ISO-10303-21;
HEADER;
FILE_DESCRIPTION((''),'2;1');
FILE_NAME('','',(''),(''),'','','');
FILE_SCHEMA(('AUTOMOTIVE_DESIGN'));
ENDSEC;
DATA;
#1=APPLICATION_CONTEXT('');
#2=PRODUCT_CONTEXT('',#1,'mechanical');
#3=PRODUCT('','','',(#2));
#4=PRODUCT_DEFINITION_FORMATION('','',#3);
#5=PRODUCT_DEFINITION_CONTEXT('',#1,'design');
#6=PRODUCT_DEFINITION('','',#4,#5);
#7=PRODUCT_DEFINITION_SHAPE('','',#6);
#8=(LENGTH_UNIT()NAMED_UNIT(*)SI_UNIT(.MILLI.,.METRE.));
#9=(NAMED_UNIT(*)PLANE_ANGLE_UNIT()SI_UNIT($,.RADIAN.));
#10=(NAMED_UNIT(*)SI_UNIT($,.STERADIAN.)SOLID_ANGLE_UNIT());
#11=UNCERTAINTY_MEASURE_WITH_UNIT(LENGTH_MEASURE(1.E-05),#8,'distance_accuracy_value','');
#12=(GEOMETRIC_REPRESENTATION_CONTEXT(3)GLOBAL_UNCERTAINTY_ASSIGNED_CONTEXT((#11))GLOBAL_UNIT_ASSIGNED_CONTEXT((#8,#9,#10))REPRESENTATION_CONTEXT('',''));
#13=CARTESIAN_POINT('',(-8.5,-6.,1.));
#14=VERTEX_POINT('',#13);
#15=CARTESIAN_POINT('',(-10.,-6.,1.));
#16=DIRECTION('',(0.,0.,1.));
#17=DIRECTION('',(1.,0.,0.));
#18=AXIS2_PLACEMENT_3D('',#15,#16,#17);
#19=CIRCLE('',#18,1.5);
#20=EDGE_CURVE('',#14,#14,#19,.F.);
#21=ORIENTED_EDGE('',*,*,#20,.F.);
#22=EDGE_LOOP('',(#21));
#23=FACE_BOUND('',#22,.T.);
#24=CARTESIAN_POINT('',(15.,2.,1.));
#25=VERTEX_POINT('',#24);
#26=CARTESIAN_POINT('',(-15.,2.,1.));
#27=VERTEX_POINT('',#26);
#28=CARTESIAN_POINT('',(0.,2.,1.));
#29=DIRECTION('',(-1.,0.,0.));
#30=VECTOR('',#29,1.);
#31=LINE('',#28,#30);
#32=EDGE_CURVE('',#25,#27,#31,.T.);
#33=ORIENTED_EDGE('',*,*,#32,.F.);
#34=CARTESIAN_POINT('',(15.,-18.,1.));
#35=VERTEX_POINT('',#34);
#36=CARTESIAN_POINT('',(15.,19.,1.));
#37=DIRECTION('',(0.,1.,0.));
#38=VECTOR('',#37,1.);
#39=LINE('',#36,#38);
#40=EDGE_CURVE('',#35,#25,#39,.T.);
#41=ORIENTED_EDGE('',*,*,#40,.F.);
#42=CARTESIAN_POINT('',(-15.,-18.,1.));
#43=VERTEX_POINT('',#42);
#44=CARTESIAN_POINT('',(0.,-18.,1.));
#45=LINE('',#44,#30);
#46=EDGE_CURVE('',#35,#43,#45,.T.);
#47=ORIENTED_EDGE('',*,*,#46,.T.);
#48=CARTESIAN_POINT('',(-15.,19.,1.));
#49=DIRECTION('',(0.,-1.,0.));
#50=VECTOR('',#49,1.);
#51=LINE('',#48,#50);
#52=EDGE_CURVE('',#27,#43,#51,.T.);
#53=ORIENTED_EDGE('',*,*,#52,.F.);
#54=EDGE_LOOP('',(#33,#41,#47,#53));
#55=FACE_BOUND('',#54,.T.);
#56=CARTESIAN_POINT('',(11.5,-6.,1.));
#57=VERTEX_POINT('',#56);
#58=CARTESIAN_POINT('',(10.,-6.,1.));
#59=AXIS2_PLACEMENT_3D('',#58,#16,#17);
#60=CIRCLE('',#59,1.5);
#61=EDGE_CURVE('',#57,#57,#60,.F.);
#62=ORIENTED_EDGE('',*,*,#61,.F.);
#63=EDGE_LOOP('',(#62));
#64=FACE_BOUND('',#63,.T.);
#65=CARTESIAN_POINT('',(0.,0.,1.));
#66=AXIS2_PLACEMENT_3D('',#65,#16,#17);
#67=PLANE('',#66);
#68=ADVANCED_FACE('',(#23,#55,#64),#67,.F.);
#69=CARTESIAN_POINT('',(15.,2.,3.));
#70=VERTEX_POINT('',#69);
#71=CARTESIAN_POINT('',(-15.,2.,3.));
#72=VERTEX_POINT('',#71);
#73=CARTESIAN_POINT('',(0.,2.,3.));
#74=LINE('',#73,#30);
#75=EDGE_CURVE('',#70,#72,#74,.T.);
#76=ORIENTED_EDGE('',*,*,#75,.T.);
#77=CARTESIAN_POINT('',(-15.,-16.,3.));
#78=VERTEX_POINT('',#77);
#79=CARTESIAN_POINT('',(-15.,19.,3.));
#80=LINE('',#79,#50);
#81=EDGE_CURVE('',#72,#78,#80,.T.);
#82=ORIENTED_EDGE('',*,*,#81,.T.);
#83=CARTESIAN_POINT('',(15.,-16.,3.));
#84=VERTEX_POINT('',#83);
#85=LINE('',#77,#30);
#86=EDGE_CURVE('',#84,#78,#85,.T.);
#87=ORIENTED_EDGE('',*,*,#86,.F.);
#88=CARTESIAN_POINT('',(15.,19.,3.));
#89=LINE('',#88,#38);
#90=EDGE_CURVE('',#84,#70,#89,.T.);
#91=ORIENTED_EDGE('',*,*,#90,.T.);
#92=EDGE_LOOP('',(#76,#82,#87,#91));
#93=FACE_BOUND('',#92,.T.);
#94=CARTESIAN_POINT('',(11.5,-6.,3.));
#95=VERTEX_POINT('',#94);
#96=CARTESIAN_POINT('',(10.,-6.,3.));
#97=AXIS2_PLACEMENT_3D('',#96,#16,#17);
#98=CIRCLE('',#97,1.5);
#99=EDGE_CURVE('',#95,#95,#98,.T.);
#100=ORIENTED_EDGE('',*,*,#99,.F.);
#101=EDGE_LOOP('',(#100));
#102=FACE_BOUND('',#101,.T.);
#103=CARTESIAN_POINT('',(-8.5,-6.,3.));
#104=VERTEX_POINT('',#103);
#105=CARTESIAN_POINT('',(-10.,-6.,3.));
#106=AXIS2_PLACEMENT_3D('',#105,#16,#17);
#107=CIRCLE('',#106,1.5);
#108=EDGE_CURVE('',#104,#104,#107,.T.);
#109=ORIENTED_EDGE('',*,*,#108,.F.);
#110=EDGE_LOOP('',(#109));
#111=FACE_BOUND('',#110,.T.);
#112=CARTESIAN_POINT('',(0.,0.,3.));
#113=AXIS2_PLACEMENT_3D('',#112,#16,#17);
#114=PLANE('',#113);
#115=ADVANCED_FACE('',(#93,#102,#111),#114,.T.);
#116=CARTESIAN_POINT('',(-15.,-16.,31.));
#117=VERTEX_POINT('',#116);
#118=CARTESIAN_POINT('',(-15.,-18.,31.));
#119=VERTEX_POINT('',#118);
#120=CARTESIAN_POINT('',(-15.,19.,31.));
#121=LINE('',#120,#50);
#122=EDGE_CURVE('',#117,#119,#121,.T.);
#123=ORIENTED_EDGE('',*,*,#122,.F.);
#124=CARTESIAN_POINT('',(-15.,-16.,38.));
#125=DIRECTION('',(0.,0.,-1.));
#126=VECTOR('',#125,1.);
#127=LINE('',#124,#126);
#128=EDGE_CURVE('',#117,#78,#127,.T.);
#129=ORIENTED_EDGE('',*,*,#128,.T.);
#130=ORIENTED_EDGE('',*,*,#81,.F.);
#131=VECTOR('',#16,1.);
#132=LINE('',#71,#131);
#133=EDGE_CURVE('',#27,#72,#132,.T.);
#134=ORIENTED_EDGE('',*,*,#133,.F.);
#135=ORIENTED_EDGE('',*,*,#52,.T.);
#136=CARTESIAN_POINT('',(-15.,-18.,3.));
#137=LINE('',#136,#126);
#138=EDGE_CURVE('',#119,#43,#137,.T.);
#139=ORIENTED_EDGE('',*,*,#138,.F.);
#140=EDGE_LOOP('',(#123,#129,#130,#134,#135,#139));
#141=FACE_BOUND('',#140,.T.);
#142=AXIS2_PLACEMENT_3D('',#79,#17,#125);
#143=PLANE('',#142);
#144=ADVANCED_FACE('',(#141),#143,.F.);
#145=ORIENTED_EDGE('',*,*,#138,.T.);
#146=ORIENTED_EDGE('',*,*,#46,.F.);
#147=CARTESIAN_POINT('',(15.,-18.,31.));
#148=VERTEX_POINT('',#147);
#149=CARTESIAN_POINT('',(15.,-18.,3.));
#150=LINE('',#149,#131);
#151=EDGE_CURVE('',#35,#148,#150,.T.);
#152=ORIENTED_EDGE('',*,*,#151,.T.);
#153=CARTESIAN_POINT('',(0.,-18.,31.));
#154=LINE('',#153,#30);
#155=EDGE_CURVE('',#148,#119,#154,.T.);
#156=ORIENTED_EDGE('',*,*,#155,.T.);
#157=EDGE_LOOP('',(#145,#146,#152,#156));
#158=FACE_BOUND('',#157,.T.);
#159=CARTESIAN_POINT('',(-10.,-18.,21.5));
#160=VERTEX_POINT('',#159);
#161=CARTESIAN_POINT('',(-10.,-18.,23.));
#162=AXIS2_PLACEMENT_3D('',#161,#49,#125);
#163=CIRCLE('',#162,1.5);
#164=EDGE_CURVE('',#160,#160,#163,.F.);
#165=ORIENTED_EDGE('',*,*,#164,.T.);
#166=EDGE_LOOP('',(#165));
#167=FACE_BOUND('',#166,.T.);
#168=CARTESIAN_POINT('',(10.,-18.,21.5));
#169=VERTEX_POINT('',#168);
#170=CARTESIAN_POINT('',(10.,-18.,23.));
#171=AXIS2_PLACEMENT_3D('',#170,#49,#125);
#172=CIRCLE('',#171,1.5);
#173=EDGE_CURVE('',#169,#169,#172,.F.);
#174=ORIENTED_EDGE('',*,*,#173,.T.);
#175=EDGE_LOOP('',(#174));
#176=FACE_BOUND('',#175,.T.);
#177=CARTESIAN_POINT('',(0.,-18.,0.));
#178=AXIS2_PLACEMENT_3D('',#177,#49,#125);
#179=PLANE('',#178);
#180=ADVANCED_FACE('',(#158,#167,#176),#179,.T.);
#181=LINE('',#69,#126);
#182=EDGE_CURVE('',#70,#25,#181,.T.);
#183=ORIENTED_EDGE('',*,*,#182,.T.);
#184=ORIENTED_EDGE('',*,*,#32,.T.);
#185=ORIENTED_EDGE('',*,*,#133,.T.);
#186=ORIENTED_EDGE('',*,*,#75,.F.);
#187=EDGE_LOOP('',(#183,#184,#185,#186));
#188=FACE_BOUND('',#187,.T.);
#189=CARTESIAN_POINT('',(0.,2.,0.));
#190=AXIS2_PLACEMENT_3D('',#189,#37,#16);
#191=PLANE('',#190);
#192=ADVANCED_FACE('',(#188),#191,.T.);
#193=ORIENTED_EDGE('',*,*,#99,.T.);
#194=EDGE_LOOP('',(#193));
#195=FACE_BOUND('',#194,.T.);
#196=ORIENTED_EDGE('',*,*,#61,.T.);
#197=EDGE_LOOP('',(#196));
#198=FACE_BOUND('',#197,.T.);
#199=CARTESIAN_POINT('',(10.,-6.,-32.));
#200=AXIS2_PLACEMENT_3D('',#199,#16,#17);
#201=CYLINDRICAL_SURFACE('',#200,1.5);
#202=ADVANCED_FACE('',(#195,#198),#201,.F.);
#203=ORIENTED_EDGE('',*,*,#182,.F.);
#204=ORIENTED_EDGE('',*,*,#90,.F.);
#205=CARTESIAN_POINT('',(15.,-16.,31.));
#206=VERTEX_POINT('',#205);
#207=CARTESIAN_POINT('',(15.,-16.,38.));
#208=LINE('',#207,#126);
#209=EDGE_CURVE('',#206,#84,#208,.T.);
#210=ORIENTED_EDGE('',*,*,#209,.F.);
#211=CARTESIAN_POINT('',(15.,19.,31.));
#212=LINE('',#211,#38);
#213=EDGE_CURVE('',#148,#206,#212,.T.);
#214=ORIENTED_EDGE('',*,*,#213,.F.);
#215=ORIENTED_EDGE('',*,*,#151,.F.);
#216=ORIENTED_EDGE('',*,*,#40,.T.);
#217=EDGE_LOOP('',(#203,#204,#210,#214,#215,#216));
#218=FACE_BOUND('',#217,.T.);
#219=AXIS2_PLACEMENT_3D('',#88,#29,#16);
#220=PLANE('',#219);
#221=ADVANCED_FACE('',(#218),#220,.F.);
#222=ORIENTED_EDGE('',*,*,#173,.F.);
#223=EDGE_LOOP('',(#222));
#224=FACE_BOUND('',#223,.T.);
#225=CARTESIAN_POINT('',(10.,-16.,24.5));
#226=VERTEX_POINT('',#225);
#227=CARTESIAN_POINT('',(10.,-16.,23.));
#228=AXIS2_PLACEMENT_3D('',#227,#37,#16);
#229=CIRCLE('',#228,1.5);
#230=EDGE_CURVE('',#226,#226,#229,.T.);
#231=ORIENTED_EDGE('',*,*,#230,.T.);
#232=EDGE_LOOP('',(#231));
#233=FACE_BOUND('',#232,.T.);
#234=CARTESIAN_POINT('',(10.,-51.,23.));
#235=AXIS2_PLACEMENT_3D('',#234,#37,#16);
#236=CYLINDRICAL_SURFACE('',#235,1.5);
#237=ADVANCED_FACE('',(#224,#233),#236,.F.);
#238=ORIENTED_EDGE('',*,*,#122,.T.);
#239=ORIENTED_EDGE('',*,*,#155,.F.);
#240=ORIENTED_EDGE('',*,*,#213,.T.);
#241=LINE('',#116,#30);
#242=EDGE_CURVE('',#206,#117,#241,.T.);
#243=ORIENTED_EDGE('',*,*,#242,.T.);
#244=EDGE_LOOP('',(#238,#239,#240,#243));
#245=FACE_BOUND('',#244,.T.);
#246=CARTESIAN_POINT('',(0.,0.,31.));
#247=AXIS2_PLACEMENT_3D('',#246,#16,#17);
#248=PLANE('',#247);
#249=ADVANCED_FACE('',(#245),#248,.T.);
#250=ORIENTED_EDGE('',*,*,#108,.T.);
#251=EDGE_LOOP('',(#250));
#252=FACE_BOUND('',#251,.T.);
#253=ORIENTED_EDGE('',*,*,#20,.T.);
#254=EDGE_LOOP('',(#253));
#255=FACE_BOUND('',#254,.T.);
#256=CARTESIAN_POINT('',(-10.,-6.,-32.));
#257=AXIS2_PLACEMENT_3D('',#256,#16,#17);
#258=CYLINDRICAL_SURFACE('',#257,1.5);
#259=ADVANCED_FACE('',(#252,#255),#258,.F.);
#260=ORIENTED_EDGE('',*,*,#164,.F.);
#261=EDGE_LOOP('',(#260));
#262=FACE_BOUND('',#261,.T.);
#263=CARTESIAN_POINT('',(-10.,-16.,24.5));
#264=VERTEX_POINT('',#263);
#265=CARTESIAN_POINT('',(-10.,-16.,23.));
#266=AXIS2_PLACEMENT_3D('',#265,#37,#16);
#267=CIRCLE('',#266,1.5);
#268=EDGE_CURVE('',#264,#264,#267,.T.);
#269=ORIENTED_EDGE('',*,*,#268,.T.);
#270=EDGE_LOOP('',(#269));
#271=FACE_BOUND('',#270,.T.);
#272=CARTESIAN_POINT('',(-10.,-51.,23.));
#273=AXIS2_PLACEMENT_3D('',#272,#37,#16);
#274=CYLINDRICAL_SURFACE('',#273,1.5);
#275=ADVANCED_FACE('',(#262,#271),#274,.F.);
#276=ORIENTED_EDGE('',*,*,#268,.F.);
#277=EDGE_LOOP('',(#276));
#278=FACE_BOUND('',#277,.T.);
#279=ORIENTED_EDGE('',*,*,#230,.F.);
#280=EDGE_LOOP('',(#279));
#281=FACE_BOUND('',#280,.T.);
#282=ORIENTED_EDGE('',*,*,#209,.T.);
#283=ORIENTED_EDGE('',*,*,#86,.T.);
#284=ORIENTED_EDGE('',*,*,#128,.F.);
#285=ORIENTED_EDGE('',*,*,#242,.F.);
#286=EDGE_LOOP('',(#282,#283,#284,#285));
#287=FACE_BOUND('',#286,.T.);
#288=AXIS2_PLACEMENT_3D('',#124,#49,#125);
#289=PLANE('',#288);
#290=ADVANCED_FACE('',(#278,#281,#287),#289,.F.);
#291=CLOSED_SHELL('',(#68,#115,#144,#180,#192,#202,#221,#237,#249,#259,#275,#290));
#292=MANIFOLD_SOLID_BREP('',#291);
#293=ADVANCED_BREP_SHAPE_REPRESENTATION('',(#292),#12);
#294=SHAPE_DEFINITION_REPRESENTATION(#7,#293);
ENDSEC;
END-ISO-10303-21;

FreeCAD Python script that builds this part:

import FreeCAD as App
import Part
import Sketcher
Q = App.Units.Quantity

doc = App.newDocument("Part")
body = doc.addObject("PartDesign::Body", "Body")

# Sketch on XY plane
sketch1 = body.newObject("Sketcher::SketchObject", "Sketch")
sketch1.AttachmentSupport = (doc.getObject("XY_Plane"), [""])
sketch1.MapMode = "FlatFace"
sketch1.addGeometry(Part.LineSegment(App.Vector(-15, 19, 0), App.Vector(-15, -19, 0)), False)
sketch1.addGeometry(Part.LineSegment(App.Vector(-15, -19, 0), App.Vector(15, -19, 0)), False)
sketch1.addGeometry(Part.LineSegment(App.Vector(15, -19, 0), App.Vector(15, 19, 0)), False)
sketch1.addGeometry(Part.LineSegment(App.Vector(15, 19, 0), App.Vector(-15, 19, 0)), False)
sketch1.addConstraint(Sketcher.Constraint("Coincident", 0, 2, 1, 1))
sketch1.addConstraint(Sketcher.Constraint("Coincident", 1, 2, 2, 1))
sketch1.addConstraint(Sketcher.Constraint("Coincident", 2, 2, 3, 1))
sketch1.addConstraint(Sketcher.Constraint("Coincident", 3, 2, 0, 1))
sketch1.addConstraint(Sketcher.Constraint("Vertical", 0))
sketch1.addConstraint(Sketcher.Constraint("Horizontal", 1))
sketch1.addConstraint(Sketcher.Constraint("Vertical", 2))
sketch1.addConstraint(Sketcher.Constraint("Horizontal", 3))
sketch1.addConstraint(Sketcher.Constraint("Symmetric", 0, 2, 2, 2, -1, 1))
sketch1.addConstraint(Sketcher.Constraint("DistanceX", 1, 1, 1, 2, Q("30 mm")))
sketch1.addConstraint(Sketcher.Constraint("DistanceY", 0, 2, 0, 1, Q("38 mm")))
pad1 = body.newObject("PartDesign::Pad", "Pad")
pad1.Profile = sketch1
pad1.Length = 3

# Sketch on XY plane
sketch2 = body.newObject("Sketcher::SketchObject", "Sketch001")
sketch2.AttachmentSupport = (doc.getObject("XY_Plane"), [""])
sketch2.MapMode = "FlatFace"
sketch2.AttachmentOffset = App.Placement(App.Vector(0, 0, 3), App.Rotation())
sketch2.addGeometry(Part.LineSegment(App.Vector(-15, -16, 0), App.Vector(-15, -19, 0)), False)
sketch2.addGeometry(Part.LineSegment(App.Vector(-15, -19, 0), App.Vector(15, -19, 0)), False)
sketch2.addGeometry(Part.LineSegment(App.Vector(15, -19, 0), App.Vector(15, -16, 0)), False)
sketch2.addGeometry(Part.LineSegment(App.Vector(15, -16, 0), App.Vector(-15, -16, 0)), False)
sketch2.addConstraint(Sketcher.Constraint("Coincident", 0, 2, 1, 1))
sketch2.addConstraint(Sketcher.Constraint("Coincident", 1, 2, 2, 1))
sketch2.addConstraint(Sketcher.Constraint("Coincident", 2, 2, 3, 1))
sketch2.addConstraint(Sketcher.Constraint("Coincident", 3, 2, 0, 1))
sketch2.addConstraint(Sketcher.Constraint("Vertical", 0))
sketch2.addConstraint(Sketcher.Constraint("Horizontal", 1))
sketch2.addConstraint(Sketcher.Constraint("Vertical", 2))
sketch2.addConstraint(Sketcher.Constraint("Horizontal", 3))
sketch2.addConstraint(Sketcher.Constraint("DistanceX", 1, 1, 1, 2, Q("30 mm")))
sketch2.addConstraint(Sketcher.Constraint("DistanceY", 0, 2, 0, 1, Q("3 mm")))
sketch2.addConstraint(Sketcher.Constraint("DistanceX", 0, 2, -1, 1, Q("15 mm")))
sketch2.addConstraint(Sketcher.Constraint("DistanceY", 0, 2, -1, 1, Q("19 mm")))
pad2 = body.newObject("PartDesign::Pad", "Pad001")
pad2.Profile = sketch2
pad2.Length = 35

# Sketch on XY plane
sketch3 = body.newObject("Sketcher::SketchObject", "Sketch002")
sketch3.AttachmentSupport = (doc.getObject("XY_Plane"), [""])
sketch3.MapMode = "FlatFace"
sketch3.AttachmentOffset = App.Placement(App.Vector(0, 0, 3), App.Rotation())
sketch3.addGeometry(Part.Circle(App.Vector(-10, -6, 0), App.Vector(0, 0, 1), 1.5), False)
sketch3.addGeometry(Part.Circle(App.Vector(10, -6, 0), App.Vector(0, 0, 1), 1.5), False)
sketch3.addConstraint(Sketcher.Constraint("Equal", 0, 1))
sketch3.addConstraint(Sketcher.Constraint("Symmetric", 0, 3, 1, 3, -2))
sketch3.addConstraint(Sketcher.Constraint("Diameter", 0, Q("3 mm")))
sketch3.addConstraint(Sketcher.Constraint("DistanceX", 0, 3, -1, 1, Q("10 mm")))
sketch3.addConstraint(Sketcher.Constraint("DistanceY", 0, 3, -1, 1, Q("6 mm")))
pocket1 = body.newObject("PartDesign::Pocket", "Pocket")
pocket1.Profile = sketch3
pocket1.Length = 35

# Sketch on XZ plane
sketch4 = body.newObject("Sketcher::SketchObject", "Sketch003")
sketch4.AttachmentSupport = (doc.getObject("XZ_Plane"), [""])
sketch4.MapMode = "FlatFace"
sketch4.AttachmentOffset = App.Placement(App.Vector(0, 0, 16), App.Rotation())
sketch4.addGeometry(Part.Circle(App.Vector(-10, 23, 0), App.Vector(0, 0, 1), 1.5), False)
sketch4.addGeometry(Part.Circle(App.Vector(10, 23, 0), App.Vector(0, 0, 1), 1.5), False)
sketch4.addConstraint(Sketcher.Constraint("Equal", 0, 1))
sketch4.addConstraint(Sketcher.Constraint("Symmetric", 0, 3, 1, 3, -2))
sketch4.addConstraint(Sketcher.Constraint("Diameter", 0, Q("3 mm")))
sketch4.addConstraint(Sketcher.Constraint("DistanceX", 0, 3, -1, 1, Q("10 mm")))
sketch4.addConstraint(Sketcher.Constraint("DistanceY", -1, 1, 0, 3, Q("23 mm")))
pocket2 = body.newObject("PartDesign::Pocket", "Pocket001")
pocket2.Profile = sketch4
pocket2.Length = 35
pocket2.Reversed = True

# Sketch on XZ plane
sketch5 = body.newObject("Sketcher::SketchObject", "Sketch004")
sketch5.AttachmentSupport = (doc.getObject("XZ_Plane"), [""])
sketch5.MapMode = "FlatFace"
sketch5.AttachmentOffset = App.Placement(App.Vector(0, 0, 19), App.Rotation())
sketch5.addGeometry(Part.LineSegment(App.Vector(-41, 49, 0), App.Vector(-41, -14, 0)), False)
sketch5.addGeometry(Part.LineSegment(App.Vector(-41, -14, 0), App.Vector(47, -14, 0)), False)
sketch5.addGeometry(Part.LineSegment(App.Vector(47, -14, 0), App.Vector(47, 49, 0)), False)
sketch5.addGeometry(Part.LineSegment(App.Vector(47, 49, 0), App.Vector(-41, 49, 0)), False)
sketch5.addConstraint(Sketcher.Constraint("Coincident", 0, 2, 1, 1))
sketch5.addConstraint(Sketcher.Constraint("Coincident", 1, 2, 2, 1))
sketch5.addConstraint(Sketcher.Constraint("Coincident", 2, 2, 3, 1))
sketch5.addConstraint(Sketcher.Constraint("Coincident", 3, 2, 0, 1))
sketch5.addConstraint(Sketcher.Constraint("Vertical", 0))
sketch5.addConstraint(Sketcher.Constraint("Horizontal", 1))
sketch5.addConstraint(Sketcher.Constraint("Vertical", 2))
sketch5.addConstraint(Sketcher.Constraint("Horizontal", 3))
sketch5.addConstraint(Sketcher.Constraint("DistanceX", 1, 1, 1, 2, Q("88.636763 mm")))
sketch5.addConstraint(Sketcher.Constraint("DistanceY", 0, 2, 0, 1, Q("63.593875 mm")))
sketch5.addConstraint(Sketcher.Constraint("DistanceY", -1, 1, 2, 2, Q("49.474379 mm")))
sketch5.addConstraint(Sketcher.Constraint("DistanceX", 0, 2, -1, 1, Q("41.188297 mm")))
pocket3 = body.newObject("PartDesign::Pocket", "Pocket002")
pocket3.Profile = sketch5
pocket3.Length = 1

# Sketch on XY plane
sketch6 = body.newObject("Sketcher::SketchObject", "Sketch005")
sketch6.AttachmentSupport = (doc.getObject("XY_Plane"), [""])
sketch6.MapMode = "FlatFace"
sketch6.addGeometry(Part.LineSegment(App.Vector(23, 23, 0), App.Vector(23, -20, 0)), False)
sketch6.addGeometry(Part.LineSegment(App.Vector(23, -20, 0), App.Vector(-26, -20, 0)), False)
sketch6.addGeometry(Part.LineSegment(App.Vector(-26, -20, 0), App.Vector(-26, 23, 0)), False)
sketch6.addGeometry(Part.LineSegment(App.Vector(-26, 23, 0), App.Vector(23, 23, 0)), False)
sketch6.addConstraint(Sketcher.Constraint("Coincident", 0, 2, 1, 1))
sketch6.addConstraint(Sketcher.Constraint("Coincident", 1, 2, 2, 1))
sketch6.addConstraint(Sketcher.Constraint("Coincident", 2, 2, 3, 1))
sketch6.addConstraint(Sketcher.Constraint("Coincident", 3, 2, 0, 1))
sketch6.addConstraint(Sketcher.Constraint("Vertical", 0))
sketch6.addConstraint(Sketcher.Constraint("Horizontal", 1))
sketch6.addConstraint(Sketcher.Constraint("Vertical", 2))
sketch6.addConstraint(Sketcher.Constraint("Horizontal", 3))
sketch6.addConstraint(Sketcher.Constraint("DistanceX", 1, 2, 1, 1, Q("48.892654 mm")))
sketch6.addConstraint(Sketcher.Constraint("DistanceY", 0, 2, 0, 1, Q("42.932058 mm")))
sketch6.addConstraint(Sketcher.Constraint("DistanceX", -1, 1, 0, 2, Q("23.18586 mm")))
sketch6.addConstraint(Sketcher.Constraint("DistanceY", -1, 1, 2, 2, Q("22.716821 mm")))
pocket4 = body.newObject("PartDesign::Pocket", "Pocket003")
pocket4.Profile = sketch6
pocket4.Length = 1
pocket4.Reversed = True

# Sketch on XY plane
sketch7 = body.newObject("Sketcher::SketchObject", "Sketch006")
sketch7.AttachmentSupport = (doc.getObject("XY_Plane"), [""])
sketch7.MapMode = "FlatFace"
sketch7.AttachmentOffset = App.Placement(App.Vector(0, 0, 38), App.Rotation())
sketch7.addGeometry(Part.LineSegment(App.Vector(-19, -13, 0), App.Vector(-19, -20, 0)), False)
sketch7.addGeometry(Part.LineSegment(App.Vector(-19, -20, 0), App.Vector(17, -20, 0)), False)
sketch7.addGeometry(Part.LineSegment(App.Vector(17, -20, 0), App.Vector(17, -13, 0)), False)
sketch7.addGeometry(Part.LineSegment(App.Vector(17, -13, 0), App.Vector(-19, -13, 0)), False)
sketch7.addConstraint(Sketcher.Constraint("Coincident", 0, 2, 1, 1))
sketch7.addConstraint(Sketcher.Constraint("Coincident", 1, 2, 2, 1))
sketch7.addConstraint(Sketcher.Constraint("Coincident", 2, 2, 3, 1))
sketch7.addConstraint(Sketcher.Constraint("Coincident", 3, 2, 0, 1))
sketch7.addConstraint(Sketcher.Constraint("Vertical", 0))
sketch7.addConstraint(Sketcher.Constraint("Horizontal", 1))
sketch7.addConstraint(Sketcher.Constraint("Vertical", 2))
sketch7.addConstraint(Sketcher.Constraint("Horizontal", 3))
sketch7.addConstraint(Sketcher.Constraint("DistanceX", 1, 1, 1, 2, Q("36.31085 mm")))
sketch7.addConstraint(Sketcher.Constraint("DistanceY", 0, 2, 0, 1, Q("6.739339 mm")))
sketch7.addConstraint(Sketcher.Constraint("DistanceY", 0, 2, -1, 1, Q("19.52045 mm")))
sketch7.addConstraint(Sketcher.Constraint("DistanceX", 0, 2, -1, 1, Q("19.097885 mm")))
pocket5 = body.newObject("PartDesign::Pocket", "Pocket004")
pocket5.Profile = sketch7
pocket5.Length = 7

# Sketch on XZ plane
sketch8 = body.newObject("Sketcher::SketchObject", "Sketch007")
sketch8.AttachmentSupport = (doc.getObject("XZ_Plane"), [""])
sketch8.MapMode = "FlatFace"
sketch8.AttachmentOffset = App.Placement(App.Vector(0, 0, -19), App.Rotation())
sketch8.addGeometry(Part.LineSegment(App.Vector(-19, -6, 0), App.Vector(-19, 7, 0)), False)
sketch8.addGeometry(Part.LineSegment(App.Vector(-19, 7, 0), App.Vector(19, 7, 0)), False)
sketch8.addGeometry(Part.LineSegment(App.Vector(19, 7, 0), App.Vector(19, -6, 0)), False)
sketch8.addGeometry(Part.LineSegment(App.Vector(19, -6, 0), App.Vector(-19, -6, 0)), False)
sketch8.addConstraint(Sketcher.Constraint("Coincident", 0, 2, 1, 1))
sketch8.addConstraint(Sketcher.Constraint("Coincident", 1, 2, 2, 1))
sketch8.addConstraint(Sketcher.Constraint("Coincident", 2, 2, 3, 1))
sketch8.addConstraint(Sketcher.Constraint("Coincident", 3, 2, 0, 1))
sketch8.addConstraint(Sketcher.Constraint("Vertical", 0))
sketch8.addConstraint(Sketcher.Constraint("Horizontal", 1))
sketch8.addConstraint(Sketcher.Constraint("Vertical", 2))
sketch8.addConstraint(Sketcher.Constraint("Horizontal", 3))
sketch8.addConstraint(Sketcher.Constraint("DistanceX", 1, 1, 1, 2, Q("38.639291 mm")))
sketch8.addConstraint(Sketcher.Constraint("DistanceY", 0, 1, 0, 2, Q("12.957783 mm")))
sketch8.addConstraint(Sketcher.Constraint("DistanceX", 0, 2, -1, 1, Q("19.401839 mm")))
sketch8.addConstraint(Sketcher.Constraint("DistanceY", -1, 1, 0, 2, Q("7.348168 mm")))
pocket6 = body.newObject("PartDesign::Pocket", "Pocket005")
pocket6.Profile = sketch8
pocket6.Length = 17
pocket6.Reversed = True

doc.recompute()
